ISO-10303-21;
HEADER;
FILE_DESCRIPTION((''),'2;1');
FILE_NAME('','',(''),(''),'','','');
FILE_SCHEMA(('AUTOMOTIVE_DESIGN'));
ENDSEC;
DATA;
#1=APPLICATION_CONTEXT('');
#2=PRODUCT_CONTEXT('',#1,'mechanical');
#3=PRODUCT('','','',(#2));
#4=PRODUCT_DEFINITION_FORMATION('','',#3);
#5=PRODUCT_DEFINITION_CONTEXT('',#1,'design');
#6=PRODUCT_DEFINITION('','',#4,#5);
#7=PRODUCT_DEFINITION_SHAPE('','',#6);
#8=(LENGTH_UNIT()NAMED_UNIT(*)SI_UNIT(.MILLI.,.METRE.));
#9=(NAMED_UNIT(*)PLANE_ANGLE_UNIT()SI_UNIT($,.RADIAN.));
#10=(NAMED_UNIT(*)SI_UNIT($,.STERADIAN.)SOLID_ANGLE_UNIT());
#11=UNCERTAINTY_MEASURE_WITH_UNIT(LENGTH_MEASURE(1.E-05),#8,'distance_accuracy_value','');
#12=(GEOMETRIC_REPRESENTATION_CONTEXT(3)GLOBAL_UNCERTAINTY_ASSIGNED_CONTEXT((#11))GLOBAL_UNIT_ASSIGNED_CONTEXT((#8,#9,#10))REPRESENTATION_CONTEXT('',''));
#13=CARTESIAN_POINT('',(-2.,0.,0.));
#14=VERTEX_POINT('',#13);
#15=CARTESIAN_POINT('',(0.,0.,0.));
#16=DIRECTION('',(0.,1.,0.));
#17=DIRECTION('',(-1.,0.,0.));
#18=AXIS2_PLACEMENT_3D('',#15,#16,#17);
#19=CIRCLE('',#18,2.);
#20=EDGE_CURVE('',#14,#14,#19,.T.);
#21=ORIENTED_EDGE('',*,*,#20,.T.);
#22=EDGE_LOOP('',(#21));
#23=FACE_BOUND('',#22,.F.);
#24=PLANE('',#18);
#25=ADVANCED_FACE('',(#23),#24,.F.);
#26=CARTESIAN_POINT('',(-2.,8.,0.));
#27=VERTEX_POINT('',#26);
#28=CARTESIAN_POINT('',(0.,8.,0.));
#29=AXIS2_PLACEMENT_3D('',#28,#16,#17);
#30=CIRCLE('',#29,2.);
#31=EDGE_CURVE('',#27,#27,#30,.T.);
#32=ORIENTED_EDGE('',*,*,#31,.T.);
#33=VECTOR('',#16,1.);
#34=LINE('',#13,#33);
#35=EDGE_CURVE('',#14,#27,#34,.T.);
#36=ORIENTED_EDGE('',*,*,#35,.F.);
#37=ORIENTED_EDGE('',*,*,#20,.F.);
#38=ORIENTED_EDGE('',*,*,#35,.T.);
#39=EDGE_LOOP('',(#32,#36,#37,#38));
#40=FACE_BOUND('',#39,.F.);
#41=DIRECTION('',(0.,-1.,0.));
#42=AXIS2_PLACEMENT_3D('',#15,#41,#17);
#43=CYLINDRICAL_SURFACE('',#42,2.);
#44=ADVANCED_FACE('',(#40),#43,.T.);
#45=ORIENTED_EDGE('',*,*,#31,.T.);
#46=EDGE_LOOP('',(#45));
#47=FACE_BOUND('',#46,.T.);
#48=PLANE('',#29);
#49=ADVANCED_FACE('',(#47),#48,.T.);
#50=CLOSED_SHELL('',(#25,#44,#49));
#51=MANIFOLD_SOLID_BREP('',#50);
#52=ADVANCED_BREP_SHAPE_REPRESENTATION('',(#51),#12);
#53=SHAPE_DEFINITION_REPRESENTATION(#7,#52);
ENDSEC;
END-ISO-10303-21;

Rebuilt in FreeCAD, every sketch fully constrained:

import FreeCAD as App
import Part
import Sketcher

V = App.Vector

doc = App.newDocument("Part")
body = doc.addObject("PartDesign::Body", "Body")

# Sketch on XZ plane
sketch1 = doc.addObject("Sketcher::SketchObject", "Sketch")
body.addObject(sketch1)
sketch1.AttachmentSupport = (doc.XZ_Plane, [""])
sketch1.MapMode = "FlatFace"
sketch1.addGeometry(Part.Circle(V(0, 0, 0), V(0, 0, 1), 2), False)
sketch1.addConstraint([
    Sketcher.Constraint("Coincident", 0, 3, -1, 1),
    Sketcher.Constraint("Diameter", 0, 4.0),
])
pad1 = doc.addObject("PartDesign::Pad", "Pad")
body.addObject(pad1)
pad1.Profile = sketch1
pad1.Length = 8
pad1.Reversed = True

doc.recompute()
